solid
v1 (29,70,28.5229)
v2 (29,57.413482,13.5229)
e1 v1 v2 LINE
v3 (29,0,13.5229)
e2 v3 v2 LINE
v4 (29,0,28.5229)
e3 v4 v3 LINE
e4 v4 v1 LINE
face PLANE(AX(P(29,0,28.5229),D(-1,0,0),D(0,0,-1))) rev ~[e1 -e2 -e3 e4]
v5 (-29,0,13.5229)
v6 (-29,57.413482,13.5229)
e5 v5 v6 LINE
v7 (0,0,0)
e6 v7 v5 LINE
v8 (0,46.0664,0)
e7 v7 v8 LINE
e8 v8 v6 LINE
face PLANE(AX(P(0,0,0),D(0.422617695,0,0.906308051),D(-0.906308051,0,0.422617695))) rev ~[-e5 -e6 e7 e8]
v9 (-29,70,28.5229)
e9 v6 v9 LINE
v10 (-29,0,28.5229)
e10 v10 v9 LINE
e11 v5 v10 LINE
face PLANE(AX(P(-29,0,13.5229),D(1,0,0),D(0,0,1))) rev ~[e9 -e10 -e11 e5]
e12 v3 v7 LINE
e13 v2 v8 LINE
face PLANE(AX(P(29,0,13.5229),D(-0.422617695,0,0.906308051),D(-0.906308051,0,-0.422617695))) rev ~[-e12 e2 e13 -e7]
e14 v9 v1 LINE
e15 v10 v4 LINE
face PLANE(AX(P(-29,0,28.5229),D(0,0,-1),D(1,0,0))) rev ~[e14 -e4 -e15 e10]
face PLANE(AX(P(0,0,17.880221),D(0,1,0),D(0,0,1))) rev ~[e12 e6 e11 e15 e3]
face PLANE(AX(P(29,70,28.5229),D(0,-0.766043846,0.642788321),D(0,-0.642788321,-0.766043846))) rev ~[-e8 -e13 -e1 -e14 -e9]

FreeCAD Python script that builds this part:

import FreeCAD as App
import Part
import Sketcher

V = App.Vector
Q = App.Units.Quantity


def add_polygon(sketch, points):
    """Adds a closed chain of lines whose ends are joined by coincident constraints."""
    first, n = sketch.GeometryCount, len(points)
    for a, b in zip(points, points[1:] + points[:1]):
        sketch.addGeometry(Part.LineSegment(App.Vector(*a, 0), App.Vector(*b, 0)), False)
    for i in range(n):
        sketch.addConstraint(Sketcher.Constraint("Coincident", first + i, 2, first + (i + 1) % n, 1))

doc = App.newDocument("Part")
body = doc.addObject("PartDesign::Body", "Body")

# Sketch on XZ plane
sketch1 = doc.addObject("Sketcher::SketchObject", "Sketch")
body.addObject(sketch1)
sketch1.AttachmentSupport = (doc.XZ_Plane, [""])
sketch1.MapMode = "FlatFace"
add_polygon(sketch1, [(29, 14), (29, 29), (-29, 29), (-29, 14), (0, 0)])  # lines 0-4
sketch1.addConstraint([
    Sketcher.Constraint("Vertical", 0),
    Sketcher.Constraint("Horizontal", 1),
    Sketcher.Constraint("Vertical", 2),
    Sketcher.Constraint("Coincident", 3, 2, -1, 1),
    Sketcher.Constraint("Symmetric", 2, 2, 4, 2, -2),
    Sketcher.Constraint("DistanceX", 1, 2, 1, 1, Q("58 mm")),
    Sketcher.Constraint("DistanceY", 0, 1, 0, 2, Q("15 mm")),
    Sketcher.Constraint("Angle", 3, Q("-25 deg")),
])
pad1 = doc.addObject("PartDesign::Pad", "Pad")
body.addObject(pad1)
pad1.Profile = sketch1
pad1.Length = 70
pad1.Reversed = True

# Sketch on YZ plane
sketch2 = doc.addObject("Sketcher::SketchObject", "Sketch001")
body.addObject(sketch2)
sketch2.AttachmentSupport = (doc.YZ_Plane, [""])
sketch2.MapMode = "FlatFace"
sketch2.AttachmentOffset = App.Placement(V(0, 0, 29), App.Rotation())
add_polygon(sketch2, [(70, 0), (70, 29), (46, 0)])  # lines 0-2
sketch2.addConstraint([
    Sketcher.Constraint("Vertical", 0),
    Sketcher.Constraint("Horizontal", 2),
    Sketcher.Constraint("PointOnObject", 1, 2, -1),
    Sketcher.Constraint("Angle", 1, Q("-130 deg")),
    Sketcher.Constraint("DistanceX", -1, 1, 0, 2, Q("70 mm")),
    Sketcher.Constraint("DistanceY", 0, 1, 0, 2, Q("28.523 mm")),
])
pocket1 = doc.addObject("PartDesign::Pocket", "Pocket")
body.addObject(pocket1)
pocket1.Profile = sketch2
pocket1.Length = 58

doc.recompute()
